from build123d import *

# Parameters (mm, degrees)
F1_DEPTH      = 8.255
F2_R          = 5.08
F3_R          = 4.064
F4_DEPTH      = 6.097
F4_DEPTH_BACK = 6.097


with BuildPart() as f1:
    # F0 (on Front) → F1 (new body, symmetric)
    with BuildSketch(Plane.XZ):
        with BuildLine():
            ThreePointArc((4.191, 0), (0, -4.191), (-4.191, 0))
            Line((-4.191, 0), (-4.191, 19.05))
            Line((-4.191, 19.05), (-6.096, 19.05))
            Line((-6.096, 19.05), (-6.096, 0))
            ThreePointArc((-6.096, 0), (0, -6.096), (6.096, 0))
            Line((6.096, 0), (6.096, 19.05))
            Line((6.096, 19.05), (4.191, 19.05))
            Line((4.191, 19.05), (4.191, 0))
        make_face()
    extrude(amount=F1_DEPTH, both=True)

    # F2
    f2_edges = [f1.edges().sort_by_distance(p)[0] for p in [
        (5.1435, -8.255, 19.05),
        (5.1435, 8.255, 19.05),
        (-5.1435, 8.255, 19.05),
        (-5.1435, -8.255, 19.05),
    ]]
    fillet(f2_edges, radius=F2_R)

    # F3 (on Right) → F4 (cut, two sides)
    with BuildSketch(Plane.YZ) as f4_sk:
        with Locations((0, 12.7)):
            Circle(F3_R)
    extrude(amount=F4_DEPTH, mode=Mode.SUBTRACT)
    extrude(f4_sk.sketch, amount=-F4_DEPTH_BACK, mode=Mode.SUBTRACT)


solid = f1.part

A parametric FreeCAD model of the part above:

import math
import FreeCAD as App
import Part
import Sketcher

V = App.Vector
Q = App.Units.Quantity


def edges_at(feature, points):
    """Names of the edges that pass closest to the given points."""
    edges = feature.Shape.Edges
    near = lambda p: min(range(len(edges)), key=lambda i: edges[i].distToShape(Part.Vertex(*p))[0])
    return sorted({f"Edge{near(p) + 1}" for p in points})

doc = App.newDocument("Part")
params = doc.addObject("Spreadsheet::Sheet", "Params")
for row, (alias, value) in enumerate([
    ("sketch1_radius", "0.24 in"),
    ("sketch1_radius2", "0.165 in"),
    ("sketch1_height", "0.75 in"),
    ("pad1_length", "0.65 in"),
    ("fillet_radius", "0.2 in"),
    ("sketch2_diameter", "0.32 in"),
], start=1):
    params.set(f"A{row}", alias)
    params.set(f"B{row}", "=" + value)
    params.setAlias(f"B{row}", alias)

body = doc.addObject("PartDesign::Body", "Body")

sketch1 = body.newObject("Sketcher::SketchObject", "Sketch")
sketch1.AttachmentSupport = (doc.getObject("XZ_Plane"), [""])
sketch1.MapMode = "FlatFace"
sketch1.addGeometry(Part.ArcOfCircle(Part.Circle(V(0, 0, 0), V(0, 0, 1), 4.191), math.radians(180), math.radians(360)), False)
sketch1.addGeometry(Part.LineSegment(V(-4.191, 0, 0), V(-4.191, 19.05, 0)), False)
sketch1.addGeometry(Part.LineSegment(V(-4.191, 19.05, 0), V(-6.096, 19.05, 0)), False)
sketch1.addGeometry(Part.LineSegment(V(-6.096, 19.05, 0), V(-6.096, 0, 0)), False)
sketch1.addGeometry(Part.ArcOfCircle(Part.Circle(V(0, 0, 0), V(0, 0, 1), 6.096), math.radians(180), math.radians(360)), False)
sketch1.addGeometry(Part.LineSegment(V(6.096, 0, 0), V(6.096, 19.05, 0)), False)
sketch1.addGeometry(Part.LineSegment(V(6.096, 19.05, 0), V(4.191, 19.05, 0)), False)
sketch1.addGeometry(Part.LineSegment(V(4.191, 19.05, 0), V(4.191, 0, 0)), False)
sketch1.addConstraint(Sketcher.Constraint("Tangent", 0, 1, 1, 1))
sketch1.addConstraint(Sketcher.Constraint("Coincident", 1, 2, 2, 1))
sketch1.addConstraint(Sketcher.Constraint("Coincident", 2, 2, 3, 1))
sketch1.addConstraint(Sketcher.Constraint("Tangent", 3, 2, 4, 1))
sketch1.addConstraint(Sketcher.Constraint("Tangent", 4, 2, 5, 1))
sketch1.addConstraint(Sketcher.Constraint("Coincident", 5, 2, 6, 1))
sketch1.addConstraint(Sketcher.Constraint("Coincident", 6, 2, 7, 1))
sketch1.addConstraint(Sketcher.Constraint("Tangent", 7, 2, 0, 2))
sketch1.addConstraint(Sketcher.Constraint("Vertical", 1))
sketch1.addConstraint(Sketcher.Constraint("Horizontal", 2))
sketch1.addConstraint(Sketcher.Constraint("Vertical", 3))
sketch1.addConstraint(Sketcher.Constraint("Vertical", 5))
sketch1.addConstraint(Sketcher.Constraint("Horizontal", 6))
sketch1.addConstraint(Sketcher.Constraint("Vertical", 7))
sketch1.addConstraint(Sketcher.Constraint("Coincident", 0, 3, -1, 1))
sketch1.addConstraint(Sketcher.Constraint("Coincident", 4, 3, -1, 1))
sketch1.addConstraint(Sketcher.Constraint("Horizontal", 2, 2, 5, 2))
sketch1.addConstraint(Sketcher.Constraint("Radius", 4, Q("0.24 in")))
sketch1.addConstraint(Sketcher.Constraint("Radius", 0, Q("0.165 in")))
sketch1.addConstraint(Sketcher.Constraint("DistanceY", 1, 1, 1, 2, Q("0.75 in")))
sketch1.setExpression("Constraints[17]", "Params.sketch1_radius")
sketch1.setExpression("Constraints[18]", "Params.sketch1_radius2")
sketch1.setExpression("Constraints[19]", "Params.sketch1_height")
pad1 = body.newObject("PartDesign::Pad", "Pad")
pad1.Profile = sketch1
pad1.setExpression("Length", "Params.pad1_length")
pad1.Midplane = True
doc.recompute()

fillet = body.newObject("PartDesign::Fillet", "Fillet")
fillet.Base = (pad1, edges_at(pad1, [
    (5.144, -8.255, 19.05),
    (5.144, 8.255, 19.05),
    (-5.144, 8.255, 19.05),
    (-5.144, -8.255, 19.05),
]))
fillet.setExpression("Radius", "Params.fillet_radius")

sketch2 = body.newObject("Sketcher::SketchObject", "Sketch001")
sketch2.AttachmentSupport = (doc.getObject("YZ_Plane"), [""])
sketch2.MapMode = "FlatFace"
sketch2.addGeometry(Part.Circle(V(0, 12.7, 0), V(0, 0, 1), 4.064), False)
sketch2.addConstraint(Sketcher.Constraint("PointOnObject", 0, 3, -2))
sketch2.addConstraint(Sketcher.Constraint("Diameter", 0, Q("0.32 in")))
sketch2.addConstraint(Sketcher.Constraint("DistanceY", -1, 1, 0, 3, Q("0.5 in")))
sketch2.setExpression("Constraints[1]", "Params.sketch2_diameter")
pocket1 = body.newObject("PartDesign::Pocket", "Pocket")
pocket1.Profile = sketch2
pocket1.Type = "ThroughAll"
pocket1.Midplane = True

doc.recompute()
